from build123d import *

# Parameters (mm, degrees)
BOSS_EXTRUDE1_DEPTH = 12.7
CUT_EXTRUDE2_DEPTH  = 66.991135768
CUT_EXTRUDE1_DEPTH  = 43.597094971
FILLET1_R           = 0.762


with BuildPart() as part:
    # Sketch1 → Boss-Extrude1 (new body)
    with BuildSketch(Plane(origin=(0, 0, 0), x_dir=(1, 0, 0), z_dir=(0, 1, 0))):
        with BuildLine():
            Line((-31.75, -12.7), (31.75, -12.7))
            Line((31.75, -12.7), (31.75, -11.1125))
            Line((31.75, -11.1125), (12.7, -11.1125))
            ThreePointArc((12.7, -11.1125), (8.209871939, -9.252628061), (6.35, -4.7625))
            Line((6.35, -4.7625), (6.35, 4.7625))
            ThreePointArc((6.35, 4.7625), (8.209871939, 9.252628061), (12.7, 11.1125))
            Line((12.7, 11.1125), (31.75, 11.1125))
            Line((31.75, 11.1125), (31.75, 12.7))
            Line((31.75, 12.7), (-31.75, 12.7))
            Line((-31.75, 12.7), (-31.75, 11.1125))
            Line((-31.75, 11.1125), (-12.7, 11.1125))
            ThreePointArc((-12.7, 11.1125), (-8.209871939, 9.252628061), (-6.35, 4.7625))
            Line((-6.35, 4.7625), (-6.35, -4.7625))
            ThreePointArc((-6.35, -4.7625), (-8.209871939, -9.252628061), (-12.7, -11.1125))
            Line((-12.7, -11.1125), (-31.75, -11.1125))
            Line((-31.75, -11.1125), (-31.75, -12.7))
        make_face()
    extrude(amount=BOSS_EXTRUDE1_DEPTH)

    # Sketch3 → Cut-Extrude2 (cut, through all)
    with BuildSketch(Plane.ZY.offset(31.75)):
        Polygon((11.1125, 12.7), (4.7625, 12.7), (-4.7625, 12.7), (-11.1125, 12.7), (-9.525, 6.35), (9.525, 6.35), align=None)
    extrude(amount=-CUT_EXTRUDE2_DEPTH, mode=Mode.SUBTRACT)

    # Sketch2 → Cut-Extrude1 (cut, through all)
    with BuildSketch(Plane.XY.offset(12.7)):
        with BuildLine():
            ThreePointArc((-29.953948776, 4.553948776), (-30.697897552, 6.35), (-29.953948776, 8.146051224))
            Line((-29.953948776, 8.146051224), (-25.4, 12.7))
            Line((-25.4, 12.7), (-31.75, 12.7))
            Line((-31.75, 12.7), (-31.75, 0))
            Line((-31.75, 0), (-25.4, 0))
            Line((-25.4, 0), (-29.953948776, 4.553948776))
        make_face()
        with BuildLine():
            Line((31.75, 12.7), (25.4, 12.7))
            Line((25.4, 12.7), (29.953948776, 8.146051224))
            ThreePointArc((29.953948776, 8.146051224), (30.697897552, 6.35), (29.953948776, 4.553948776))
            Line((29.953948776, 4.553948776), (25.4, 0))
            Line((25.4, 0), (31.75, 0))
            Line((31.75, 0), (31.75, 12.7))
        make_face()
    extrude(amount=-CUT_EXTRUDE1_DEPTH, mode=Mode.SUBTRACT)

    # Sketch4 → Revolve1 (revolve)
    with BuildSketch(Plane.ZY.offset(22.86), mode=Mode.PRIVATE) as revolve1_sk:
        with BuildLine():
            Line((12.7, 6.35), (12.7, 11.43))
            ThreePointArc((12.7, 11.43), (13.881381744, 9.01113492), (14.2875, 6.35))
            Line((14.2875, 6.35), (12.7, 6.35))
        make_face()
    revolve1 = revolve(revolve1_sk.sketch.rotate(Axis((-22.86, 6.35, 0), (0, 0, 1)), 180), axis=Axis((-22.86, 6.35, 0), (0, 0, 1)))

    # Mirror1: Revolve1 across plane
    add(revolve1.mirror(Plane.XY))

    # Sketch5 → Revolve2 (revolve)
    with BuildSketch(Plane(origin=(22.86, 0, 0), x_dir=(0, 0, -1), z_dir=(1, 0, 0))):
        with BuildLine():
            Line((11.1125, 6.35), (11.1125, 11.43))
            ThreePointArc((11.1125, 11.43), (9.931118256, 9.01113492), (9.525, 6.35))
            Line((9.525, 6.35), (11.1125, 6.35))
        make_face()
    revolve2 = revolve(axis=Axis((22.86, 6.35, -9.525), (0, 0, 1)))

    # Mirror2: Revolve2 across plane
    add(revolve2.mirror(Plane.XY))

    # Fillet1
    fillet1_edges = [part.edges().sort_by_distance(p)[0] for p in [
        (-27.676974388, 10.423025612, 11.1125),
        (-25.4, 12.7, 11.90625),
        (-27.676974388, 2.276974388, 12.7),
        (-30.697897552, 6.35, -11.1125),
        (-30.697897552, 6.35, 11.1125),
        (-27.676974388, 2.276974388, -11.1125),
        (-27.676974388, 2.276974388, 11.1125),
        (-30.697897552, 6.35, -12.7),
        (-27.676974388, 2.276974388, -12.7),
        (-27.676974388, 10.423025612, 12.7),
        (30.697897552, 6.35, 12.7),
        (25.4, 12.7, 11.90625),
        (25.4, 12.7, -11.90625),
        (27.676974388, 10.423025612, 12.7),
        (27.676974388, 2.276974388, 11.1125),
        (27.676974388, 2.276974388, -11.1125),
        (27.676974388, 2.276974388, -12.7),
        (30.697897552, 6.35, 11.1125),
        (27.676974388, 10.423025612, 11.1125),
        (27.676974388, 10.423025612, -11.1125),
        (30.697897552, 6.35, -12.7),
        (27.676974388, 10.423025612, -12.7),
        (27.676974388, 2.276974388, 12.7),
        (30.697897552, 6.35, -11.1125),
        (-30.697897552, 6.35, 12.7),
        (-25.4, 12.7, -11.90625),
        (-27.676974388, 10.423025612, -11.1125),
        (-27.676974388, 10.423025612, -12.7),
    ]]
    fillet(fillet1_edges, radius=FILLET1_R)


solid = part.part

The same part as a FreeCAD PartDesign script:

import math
import FreeCAD as App
import Part
import Sketcher

V = App.Vector
Q = App.Units.Quantity


def edges_at(feature, points):
    """Names of the edges that pass closest to the given points."""
    edges = feature.Shape.Edges
    near = lambda p: min(range(len(edges)), key=lambda i: edges[i].distToShape(Part.Vertex(*p))[0])
    return sorted({f"Edge{near(p) + 1}" for p in points})


def add_polygon(sketch, points):
    """Adds a closed chain of lines whose ends are joined by coincident constraints."""
    first, n = sketch.GeometryCount, len(points)
    for a, b in zip(points, points[1:] + points[:1]):
        sketch.addGeometry(Part.LineSegment(App.Vector(*a, 0), App.Vector(*b, 0)), False)
    for i in range(n):
        sketch.addConstraint(Sketcher.Constraint("Coincident", first + i, 2, first + (i + 1) % n, 1))

doc = App.newDocument("Part")
body = doc.addObject("PartDesign::Body", "Body")

# Sketch on XZ plane
sketch1 = body.newObject("Sketcher::SketchObject", "Sketch")
sketch1.AttachmentSupport = (doc.getObject("XZ_Plane"), [""])
sketch1.MapMode = "FlatFace"
sketch1.addGeometry([
    Part.LineSegment(V(-31.8, 12.7, 0), V(31.8, 12.7, 0)),  # 0
    Part.LineSegment(V(31.8, 12.7, 0), V(31.8, 11.1, 0)),  # 1
    Part.LineSegment(V(31.8, 11.1, 0), V(12.7, 11.1, 0)),  # 2
    Part.ArcOfCircle(Part.Circle(V(12.7, 4.8, 0), V(0, 0, 1), 6.3), math.radians(90), math.radians(180)),  # 3
    Part.LineSegment(V(6.3, 4.8, 0), V(6.3, -4.8, 0)),  # 4
    Part.ArcOfCircle(Part.Circle(V(12.7, -4.8, 0), V(0, 0, 1), 6.3), math.radians(180), math.radians(270)),  # 5
    Part.LineSegment(V(12.7, -11.1, 0), V(31.8, -11.1, 0)),  # 6
    Part.LineSegment(V(31.8, -11.1, 0), V(31.8, -12.7, 0)),  # 7
    Part.LineSegment(V(31.8, -12.7, 0), V(-31.8, -12.7, 0)),  # 8
    Part.LineSegment(V(-31.8, -12.7, 0), V(-31.8, -11.1, 0)),  # 9
    Part.LineSegment(V(-31.8, -11.1, 0), V(-12.7, -11.1, 0)),  # 10
    Part.ArcOfCircle(Part.Circle(V(-12.7, -4.8, 0), V(0, 0, 1), 6.3), math.radians(-90), math.radians(0)),  # 11
    Part.LineSegment(V(-6.3, -4.8, 0), V(-6.3, 4.8, 0)),  # 12
    Part.ArcOfCircle(Part.Circle(V(-12.7, 4.8, 0), V(0, 0, 1), 6.3), math.radians(0), math.radians(90)),  # 13
    Part.LineSegment(V(-12.7, 11.1, 0), V(-31.8, 11.1, 0)),  # 14
    Part.LineSegment(V(-31.8, 11.1, 0), V(-31.8, 12.7, 0)),  # 15
], False)
sketch1.addConstraint([
    Sketcher.Constraint("Coincident", 0, 2, 1, 1),
    Sketcher.Constraint("Coincident", 1, 2, 2, 1),
    Sketcher.Constraint("Tangent", 2, 2, 3, 1),
    Sketcher.Constraint("Tangent", 3, 2, 4, 1),
    Sketcher.Constraint("Tangent", 4, 2, 5, 1),
    Sketcher.Constraint("Tangent", 5, 2, 6, 1),
    Sketcher.Constraint("Coincident", 6, 2, 7, 1),
    Sketcher.Constraint("Coincident", 7, 2, 8, 1),
    Sketcher.Constraint("Coincident", 8, 2, 9, 1),
    Sketcher.Constraint("Coincident", 9, 2, 10, 1),
    Sketcher.Constraint("Tangent", 10, 2, 11, 1),
    Sketcher.Constraint("Tangent", 11, 2, 12, 1),
    Sketcher.Constraint("Tangent", 12, 2, 13, 1),
    Sketcher.Constraint("Tangent", 13, 2, 14, 1),
    Sketcher.Constraint("Coincident", 14, 2, 15, 1),
    Sketcher.Constraint("Coincident", 15, 2, 0, 1),
    Sketcher.Constraint("Horizontal", 0),
    Sketcher.Constraint("Vertical", 1),
    Sketcher.Constraint("Horizontal", 2),
    Sketcher.Constraint("Vertical", 4),
    Sketcher.Constraint("Horizontal", 6),
    Sketcher.Constraint("Vertical", 7),
    Sketcher.Constraint("Horizontal", 8),
    Sketcher.Constraint("Vertical", 9),
    Sketcher.Constraint("Horizontal", 10),
    Sketcher.Constraint("Vertical", 12),
    Sketcher.Constraint("Horizontal", 14),
    Sketcher.Constraint("Vertical", 15),
    Sketcher.Constraint("Equal", 3, 5),
    Sketcher.Constraint("Equal", 5, 11),
    Sketcher.Constraint("Equal", 11, 13),
    Sketcher.Constraint("Symmetric", 3, 3, 11, 3, -1, 1),
    Sketcher.Constraint("Symmetric", 0, 2, 8, 2, -1, 1),
    Sketcher.Constraint("Symmetric", 6, 2, 14, 2, -1, 1),
    Sketcher.Constraint("Symmetric", 6, 2, 9, 2, -2),
    Sketcher.Constraint("Radius", 3, Q("0.25 in")),
    Sketcher.Constraint("DistanceX", 0, 1, 0, 2, Q("2.5 in")),
    Sketcher.Constraint("DistanceX", 11, 3, 5, 3, Q("1 in")),
    Sketcher.Constraint("DistanceY", 7, 2, 0, 2, Q("1 in")),
    Sketcher.Constraint("DistanceY", 1, 2, 1, 1, Q("0.0625 in")),
])
pad1 = body.newObject("PartDesign::Pad", "Pad")
pad1.Profile = sketch1
pad1.Length = Q("0.5 in")
pad1.Reversed = True

# Sketch on YZ plane
sketch2 = body.newObject("Sketcher::SketchObject", "Sketch001")
sketch2.AttachmentSupport = (doc.getObject("YZ_Plane"), [""])
sketch2.MapMode = "FlatFace"
sketch2.AttachmentOffset = App.Placement(V(0, 0, -1.25 * 25.4), App.Rotation())
add_polygon(sketch2, [(13, 11), (13, -11), (6, -10), (6, 10)])  # lines 0-3
sketch2.addConstraint([
    Sketcher.Constraint("Vertical", 0),
    Sketcher.Constraint("Vertical", 2),
    Sketcher.Constraint("Equal", 1, 3),
    Sketcher.Constraint("DistanceY", 2, 1, 2, 2, Q("0.75 in")),
    Sketcher.Constraint("DistanceX", -1, 1, 0, 2, Q("0.5 in")),
    Sketcher.Constraint("DistanceY", 0, 2, 0, 1, Q("0.875 in")),
    Sketcher.Constraint("DistanceX", -1, 1, 1, 2, Q("0.25 in")),
    Sketcher.Constraint("DistanceY", 0, 2, -1, 1, Q("0.4375 in")),
])
pocket1 = body.newObject("PartDesign::Pocket", "Pocket")
pocket1.Profile = sketch2
pocket1.Type = "ThroughAll"
pocket1.Reversed = True

# Sketch on XY plane
sketch3 = body.newObject("Sketcher::SketchObject", "Sketch002")
sketch3.AttachmentSupport = (doc.getObject("XY_Plane"), [""])
sketch3.MapMode = "FlatFace"
sketch3.AttachmentOffset = App.Placement(V(0, 0, 0.5 * 25.4), App.Rotation())
sketch3.addGeometry([
    Part.ArcOfCircle(Part.Circle(V(-28.2, 6.3, 0), V(0, 0, 1), 2.5), math.radians(135), math.radians(225)),  # 0
    Part.LineSegment(V(-30, 8.1, 0), V(-25.4, 12.7, 0)),  # 1
    Part.LineSegment(V(-25.4, 12.7, 0), V(-31.8, 12.7, 0)),  # 2
    Part.LineSegment(V(-31.8, 12.7, 0), V(-31.8, 0, 0)),  # 3
    Part.LineSegment(V(-31.8, 0, 0), V(-25.4, 0, 0)),  # 4
    Part.LineSegment(V(-25.4, 0, 0), V(-30, 4.6, 0)),  # 5
    Part.LineSegment(V(31.8, 12.7, 0), V(25.4, 12.7, 0)),  # 6
    Part.LineSegment(V(25.4, 12.7, 0), V(30, 8.1, 0)),  # 7
    Part.ArcOfCircle(Part.Circle(V(28.2, 6.3, 0), V(0, 0, 1), 2.5), math.radians(-45), math.radians(45)),  # 8
    Part.LineSegment(V(30, 4.6, 0), V(25.4, 0, 0)),  # 9
    Part.LineSegment(V(25.4, 0, 0), V(31.8, 0, 0)),  # 10
    Part.LineSegment(V(31.8, 0, 0), V(31.8, 12.7, 0)),  # 11
], False)
sketch3.addConstraint([
    Sketcher.Constraint("Tangent", 0, 1, 1, 1),
    Sketcher.Constraint("Coincident", 1, 2, 2, 1),
    Sketcher.Constraint("Coincident", 2, 2, 3, 1),
    Sketcher.Constraint("Coincident", 3, 2, 4, 1),
    Sketcher.Constraint("Coincident", 4, 2, 5, 1),
    Sketcher.Constraint("Tangent", 5, 2, 0, 2),
    Sketcher.Constraint("Coincident", 6, 2, 7, 1),
    Sketcher.Constraint("Tangent", 7, 2, 8, 2),
    Sketcher.Constraint("Tangent", 8, 1, 9, 1),
    Sketcher.Constraint("Coincident", 9, 2, 10, 1),
    Sketcher.Constraint("Coincident", 10, 2, 11, 1),
    Sketcher.Constraint("Coincident", 11, 2, 6, 1),
    Sketcher.Constraint("Horizontal", 2),
    Sketcher.Constraint("Vertical", 3),
    Sketcher.Constraint("Horizontal", 4),
    Sketcher.Constraint("Horizontal", 6),
    Sketcher.Constraint("Horizontal", 10),
    Sketcher.Constraint("Vertical", 11),
    Sketcher.Constraint("Equal", 0, 8),
    Sketcher.Constraint("Symmetric", 4, 2, 9, 2, -1, 1),
    Sketcher.Constraint("Symmetric", 0, 3, 8, 3, -2),
    Sketcher.Constraint("Symmetric", 1, 2, 6, 2, -2),
    Sketcher.Constraint("Symmetric", 3, 2, 10, 2, -2),
    Sketcher.Constraint("Perpendicular", 1, 5),
    Sketcher.Constraint("Parallel", 5, 7),
    Sketcher.Constraint("Vertical", 1, 2, 4, 2),
    Sketcher.Constraint("Radius", 0, Q("0.1 in")),
    Sketcher.Constraint("DistanceY", 3, 2, 3, 1, Q("0.5 in")),
    Sketcher.Constraint("DistanceX", 1, 2, -1, 1, Q("1 in")),
    Sketcher.Constraint("DistanceX", 2, 2, 2, 1, Q("0.25 in")),
])
pocket2 = body.newObject("PartDesign::Pocket", "Pocket001")
pocket2.Profile = sketch3
pocket2.Type = "ThroughAll"

# Sketch on YZ plane
sketch4 = body.newObject("Sketcher::SketchObject", "Sketch003")
sketch4.AttachmentSupport = (doc.getObject("YZ_Plane"), [""])
sketch4.MapMode = "FlatFace"
sketch4.AttachmentOffset = App.Placement(V(0, 0, -0.9 * 25.4), App.Rotation())
sketch4.addGeometry([
    Part.LineSegment(V(11.4, 12.7, 0), V(6.3, 12.7, 0)),
    Part.LineSegment(V(6.3, 12.7, 0), V(6.3, 14.3, 0)),
    Part.ArcOfCircle(Part.Circle(V(6.3, 5.4, 0), V(0, 0, 1), 8.9), math.radians(55), math.radians(90)),
], False)
sketch4.addGeometry(Part.LineSegment(V(6.3, 5.4, 0), V(6.3, 14.3, 0)), True)  # axis
sketch4.addConstraint([
    Sketcher.Constraint("Coincident", 0, 2, 1, 1),
    Sketcher.Constraint("Coincident", 1, 2, 2, 2),
    Sketcher.Constraint("Coincident", 2, 1, 0, 1),
    Sketcher.Constraint("Horizontal", 0),
    Sketcher.Constraint("Vertical", 1),
    Sketcher.Constraint("Vertical", 3),
    Sketcher.Constraint("Coincident", 3, 1, 2, 3),
    Sketcher.Constraint("Coincident", 3, 2, 1, 2),
    Sketcher.Constraint("DistanceX", 0, 2, 0, 1, Q("0.2 in")),
    Sketcher.Constraint("DistanceY", -1, 1, 0, 2, Q("0.5 in")),
    Sketcher.Constraint("DistanceY", 1, 1, 1, 2, Q("0.0625 in")),
    Sketcher.Constraint("DistanceX", -1, 1, 2, 3, Q("0.25 in")),
])
revolution = body.newObject("PartDesign::Revolution", "Revolution")
revolution.Profile = sketch4
revolution.ReferenceAxis = (sketch4, ["Axis0"])
revolution.Angle = 360
doc.recompute()

mirrored = body.newObject("PartDesign::Mirrored", "Mirrored")
mirrored.Originals = [revolution]
mirrored.MirrorPlane = (doc.getObject("XY_Plane"), [""])
body.Tip = mirrored

# Sketch on YZ plane
sketch5 = body.newObject("Sketcher::SketchObject", "Sketch004")
sketch5.AttachmentSupport = (doc.getObject("YZ_Plane"), [""])
sketch5.MapMode = "FlatFace"
sketch5.AttachmentOffset = App.Placement(V(0, 0, 0.9 * 25.4), App.Rotation())
sketch5.addGeometry([
    Part.LineSegment(V(6.3, -11.1, 0), V(11.4, -11.1, 0)),
    Part.ArcOfCircle(Part.Circle(V(6.3, -18.4, 0), V(0, 0, 1), 8.9), math.radians(55), math.radians(90)),
    Part.LineSegment(V(6.3, -9.5, 0), V(6.3, -11.1, 0)),
], False)
sketch5.addGeometry(Part.LineSegment(V(6.3, -18.4, 0), V(6.3, -9.5, 0)), True)  # axis
sketch5.addConstraint([
    Sketcher.Constraint("Coincident", 0, 2, 1, 1),
    Sketcher.Constraint("Coincident", 1, 2, 2, 1),
    Sketcher.Constraint("Coincident", 2, 2, 0, 1),
    Sketcher.Constraint("Horizontal", 0),
    Sketcher.Constraint("Vertical", 2),
    Sketcher.Constraint("Vertical", 3),
    Sketcher.Constraint("Coincident", 3, 1, 1, 3),
    Sketcher.Constraint("Coincident", 3, 2, 1, 2),
    Sketcher.Constraint("DistanceX", 0, 1, 0, 2, Q("0.2 in")),
    Sketcher.Constraint("DistanceY", 2, 2, 2, 1, Q("0.0625 in")),
    Sketcher.Constraint("DistanceX", -1, 1, 1, 3, Q("0.25 in")),
    Sketcher.Constraint("DistanceY", 0, 2, -1, 1, Q("0.4375 in")),
])
revolution2 = body.newObject("PartDesign::Revolution", "Revolution001")
revolution2.Profile = sketch5
revolution2.ReferenceAxis = (sketch5, ["Axis0"])
revolution2.Angle = 360
doc.recompute()

mirrored2 = body.newObject("PartDesign::Mirrored", "Mirrored001")
mirrored2.Originals = [revolution2]
mirrored2.MirrorPlane = (doc.getObject("XY_Plane"), [""])
body.Tip = mirrored2
doc.recompute()

fillet = body.newObject("PartDesign::Fillet", "Fillet")
fillet.Base = (mirrored2, edges_at(mirrored2, [
    (-27.677, 10.423, 11.113),
    (-25.4, 12.7, 11.906),
    (-27.677, 2.277, 12.7),
    (-30.698, 6.35, -11.113),
    (-30.698, 6.35, 11.113),
    (-27.677, 2.277, -11.113),
    (-27.677, 2.277, 11.113),
    (-30.698, 6.35, -12.7),
    (-27.677, 2.277, -12.7),
    (-27.677, 10.423, 12.7),
    (30.698, 6.35, 12.7),
    (25.4, 12.7, 11.906),
    (25.4, 12.7, -11.906),
    (27.677, 10.423, 12.7),
    (27.677, 2.277, 11.113),
    (27.677, 2.277, -11.113),
    (27.677, 2.277, -12.7),
    (30.698, 6.35, 11.113),
    (27.677, 10.423, 11.113),
    (27.677, 10.423, -11.113),
    (30.698, 6.35, -12.7),
    (27.677, 10.423, -12.7),
    (27.677, 2.277, 12.7),
    (30.698, 6.35, -11.113),
    (-30.698, 6.35, 12.7),
    (-25.4, 12.7, -11.906),
    (-27.677, 10.423, -11.113),
    (-27.677, 10.423, -12.7),
]))
fillet.Radius = Q("0.03 in")

doc.recompute()
